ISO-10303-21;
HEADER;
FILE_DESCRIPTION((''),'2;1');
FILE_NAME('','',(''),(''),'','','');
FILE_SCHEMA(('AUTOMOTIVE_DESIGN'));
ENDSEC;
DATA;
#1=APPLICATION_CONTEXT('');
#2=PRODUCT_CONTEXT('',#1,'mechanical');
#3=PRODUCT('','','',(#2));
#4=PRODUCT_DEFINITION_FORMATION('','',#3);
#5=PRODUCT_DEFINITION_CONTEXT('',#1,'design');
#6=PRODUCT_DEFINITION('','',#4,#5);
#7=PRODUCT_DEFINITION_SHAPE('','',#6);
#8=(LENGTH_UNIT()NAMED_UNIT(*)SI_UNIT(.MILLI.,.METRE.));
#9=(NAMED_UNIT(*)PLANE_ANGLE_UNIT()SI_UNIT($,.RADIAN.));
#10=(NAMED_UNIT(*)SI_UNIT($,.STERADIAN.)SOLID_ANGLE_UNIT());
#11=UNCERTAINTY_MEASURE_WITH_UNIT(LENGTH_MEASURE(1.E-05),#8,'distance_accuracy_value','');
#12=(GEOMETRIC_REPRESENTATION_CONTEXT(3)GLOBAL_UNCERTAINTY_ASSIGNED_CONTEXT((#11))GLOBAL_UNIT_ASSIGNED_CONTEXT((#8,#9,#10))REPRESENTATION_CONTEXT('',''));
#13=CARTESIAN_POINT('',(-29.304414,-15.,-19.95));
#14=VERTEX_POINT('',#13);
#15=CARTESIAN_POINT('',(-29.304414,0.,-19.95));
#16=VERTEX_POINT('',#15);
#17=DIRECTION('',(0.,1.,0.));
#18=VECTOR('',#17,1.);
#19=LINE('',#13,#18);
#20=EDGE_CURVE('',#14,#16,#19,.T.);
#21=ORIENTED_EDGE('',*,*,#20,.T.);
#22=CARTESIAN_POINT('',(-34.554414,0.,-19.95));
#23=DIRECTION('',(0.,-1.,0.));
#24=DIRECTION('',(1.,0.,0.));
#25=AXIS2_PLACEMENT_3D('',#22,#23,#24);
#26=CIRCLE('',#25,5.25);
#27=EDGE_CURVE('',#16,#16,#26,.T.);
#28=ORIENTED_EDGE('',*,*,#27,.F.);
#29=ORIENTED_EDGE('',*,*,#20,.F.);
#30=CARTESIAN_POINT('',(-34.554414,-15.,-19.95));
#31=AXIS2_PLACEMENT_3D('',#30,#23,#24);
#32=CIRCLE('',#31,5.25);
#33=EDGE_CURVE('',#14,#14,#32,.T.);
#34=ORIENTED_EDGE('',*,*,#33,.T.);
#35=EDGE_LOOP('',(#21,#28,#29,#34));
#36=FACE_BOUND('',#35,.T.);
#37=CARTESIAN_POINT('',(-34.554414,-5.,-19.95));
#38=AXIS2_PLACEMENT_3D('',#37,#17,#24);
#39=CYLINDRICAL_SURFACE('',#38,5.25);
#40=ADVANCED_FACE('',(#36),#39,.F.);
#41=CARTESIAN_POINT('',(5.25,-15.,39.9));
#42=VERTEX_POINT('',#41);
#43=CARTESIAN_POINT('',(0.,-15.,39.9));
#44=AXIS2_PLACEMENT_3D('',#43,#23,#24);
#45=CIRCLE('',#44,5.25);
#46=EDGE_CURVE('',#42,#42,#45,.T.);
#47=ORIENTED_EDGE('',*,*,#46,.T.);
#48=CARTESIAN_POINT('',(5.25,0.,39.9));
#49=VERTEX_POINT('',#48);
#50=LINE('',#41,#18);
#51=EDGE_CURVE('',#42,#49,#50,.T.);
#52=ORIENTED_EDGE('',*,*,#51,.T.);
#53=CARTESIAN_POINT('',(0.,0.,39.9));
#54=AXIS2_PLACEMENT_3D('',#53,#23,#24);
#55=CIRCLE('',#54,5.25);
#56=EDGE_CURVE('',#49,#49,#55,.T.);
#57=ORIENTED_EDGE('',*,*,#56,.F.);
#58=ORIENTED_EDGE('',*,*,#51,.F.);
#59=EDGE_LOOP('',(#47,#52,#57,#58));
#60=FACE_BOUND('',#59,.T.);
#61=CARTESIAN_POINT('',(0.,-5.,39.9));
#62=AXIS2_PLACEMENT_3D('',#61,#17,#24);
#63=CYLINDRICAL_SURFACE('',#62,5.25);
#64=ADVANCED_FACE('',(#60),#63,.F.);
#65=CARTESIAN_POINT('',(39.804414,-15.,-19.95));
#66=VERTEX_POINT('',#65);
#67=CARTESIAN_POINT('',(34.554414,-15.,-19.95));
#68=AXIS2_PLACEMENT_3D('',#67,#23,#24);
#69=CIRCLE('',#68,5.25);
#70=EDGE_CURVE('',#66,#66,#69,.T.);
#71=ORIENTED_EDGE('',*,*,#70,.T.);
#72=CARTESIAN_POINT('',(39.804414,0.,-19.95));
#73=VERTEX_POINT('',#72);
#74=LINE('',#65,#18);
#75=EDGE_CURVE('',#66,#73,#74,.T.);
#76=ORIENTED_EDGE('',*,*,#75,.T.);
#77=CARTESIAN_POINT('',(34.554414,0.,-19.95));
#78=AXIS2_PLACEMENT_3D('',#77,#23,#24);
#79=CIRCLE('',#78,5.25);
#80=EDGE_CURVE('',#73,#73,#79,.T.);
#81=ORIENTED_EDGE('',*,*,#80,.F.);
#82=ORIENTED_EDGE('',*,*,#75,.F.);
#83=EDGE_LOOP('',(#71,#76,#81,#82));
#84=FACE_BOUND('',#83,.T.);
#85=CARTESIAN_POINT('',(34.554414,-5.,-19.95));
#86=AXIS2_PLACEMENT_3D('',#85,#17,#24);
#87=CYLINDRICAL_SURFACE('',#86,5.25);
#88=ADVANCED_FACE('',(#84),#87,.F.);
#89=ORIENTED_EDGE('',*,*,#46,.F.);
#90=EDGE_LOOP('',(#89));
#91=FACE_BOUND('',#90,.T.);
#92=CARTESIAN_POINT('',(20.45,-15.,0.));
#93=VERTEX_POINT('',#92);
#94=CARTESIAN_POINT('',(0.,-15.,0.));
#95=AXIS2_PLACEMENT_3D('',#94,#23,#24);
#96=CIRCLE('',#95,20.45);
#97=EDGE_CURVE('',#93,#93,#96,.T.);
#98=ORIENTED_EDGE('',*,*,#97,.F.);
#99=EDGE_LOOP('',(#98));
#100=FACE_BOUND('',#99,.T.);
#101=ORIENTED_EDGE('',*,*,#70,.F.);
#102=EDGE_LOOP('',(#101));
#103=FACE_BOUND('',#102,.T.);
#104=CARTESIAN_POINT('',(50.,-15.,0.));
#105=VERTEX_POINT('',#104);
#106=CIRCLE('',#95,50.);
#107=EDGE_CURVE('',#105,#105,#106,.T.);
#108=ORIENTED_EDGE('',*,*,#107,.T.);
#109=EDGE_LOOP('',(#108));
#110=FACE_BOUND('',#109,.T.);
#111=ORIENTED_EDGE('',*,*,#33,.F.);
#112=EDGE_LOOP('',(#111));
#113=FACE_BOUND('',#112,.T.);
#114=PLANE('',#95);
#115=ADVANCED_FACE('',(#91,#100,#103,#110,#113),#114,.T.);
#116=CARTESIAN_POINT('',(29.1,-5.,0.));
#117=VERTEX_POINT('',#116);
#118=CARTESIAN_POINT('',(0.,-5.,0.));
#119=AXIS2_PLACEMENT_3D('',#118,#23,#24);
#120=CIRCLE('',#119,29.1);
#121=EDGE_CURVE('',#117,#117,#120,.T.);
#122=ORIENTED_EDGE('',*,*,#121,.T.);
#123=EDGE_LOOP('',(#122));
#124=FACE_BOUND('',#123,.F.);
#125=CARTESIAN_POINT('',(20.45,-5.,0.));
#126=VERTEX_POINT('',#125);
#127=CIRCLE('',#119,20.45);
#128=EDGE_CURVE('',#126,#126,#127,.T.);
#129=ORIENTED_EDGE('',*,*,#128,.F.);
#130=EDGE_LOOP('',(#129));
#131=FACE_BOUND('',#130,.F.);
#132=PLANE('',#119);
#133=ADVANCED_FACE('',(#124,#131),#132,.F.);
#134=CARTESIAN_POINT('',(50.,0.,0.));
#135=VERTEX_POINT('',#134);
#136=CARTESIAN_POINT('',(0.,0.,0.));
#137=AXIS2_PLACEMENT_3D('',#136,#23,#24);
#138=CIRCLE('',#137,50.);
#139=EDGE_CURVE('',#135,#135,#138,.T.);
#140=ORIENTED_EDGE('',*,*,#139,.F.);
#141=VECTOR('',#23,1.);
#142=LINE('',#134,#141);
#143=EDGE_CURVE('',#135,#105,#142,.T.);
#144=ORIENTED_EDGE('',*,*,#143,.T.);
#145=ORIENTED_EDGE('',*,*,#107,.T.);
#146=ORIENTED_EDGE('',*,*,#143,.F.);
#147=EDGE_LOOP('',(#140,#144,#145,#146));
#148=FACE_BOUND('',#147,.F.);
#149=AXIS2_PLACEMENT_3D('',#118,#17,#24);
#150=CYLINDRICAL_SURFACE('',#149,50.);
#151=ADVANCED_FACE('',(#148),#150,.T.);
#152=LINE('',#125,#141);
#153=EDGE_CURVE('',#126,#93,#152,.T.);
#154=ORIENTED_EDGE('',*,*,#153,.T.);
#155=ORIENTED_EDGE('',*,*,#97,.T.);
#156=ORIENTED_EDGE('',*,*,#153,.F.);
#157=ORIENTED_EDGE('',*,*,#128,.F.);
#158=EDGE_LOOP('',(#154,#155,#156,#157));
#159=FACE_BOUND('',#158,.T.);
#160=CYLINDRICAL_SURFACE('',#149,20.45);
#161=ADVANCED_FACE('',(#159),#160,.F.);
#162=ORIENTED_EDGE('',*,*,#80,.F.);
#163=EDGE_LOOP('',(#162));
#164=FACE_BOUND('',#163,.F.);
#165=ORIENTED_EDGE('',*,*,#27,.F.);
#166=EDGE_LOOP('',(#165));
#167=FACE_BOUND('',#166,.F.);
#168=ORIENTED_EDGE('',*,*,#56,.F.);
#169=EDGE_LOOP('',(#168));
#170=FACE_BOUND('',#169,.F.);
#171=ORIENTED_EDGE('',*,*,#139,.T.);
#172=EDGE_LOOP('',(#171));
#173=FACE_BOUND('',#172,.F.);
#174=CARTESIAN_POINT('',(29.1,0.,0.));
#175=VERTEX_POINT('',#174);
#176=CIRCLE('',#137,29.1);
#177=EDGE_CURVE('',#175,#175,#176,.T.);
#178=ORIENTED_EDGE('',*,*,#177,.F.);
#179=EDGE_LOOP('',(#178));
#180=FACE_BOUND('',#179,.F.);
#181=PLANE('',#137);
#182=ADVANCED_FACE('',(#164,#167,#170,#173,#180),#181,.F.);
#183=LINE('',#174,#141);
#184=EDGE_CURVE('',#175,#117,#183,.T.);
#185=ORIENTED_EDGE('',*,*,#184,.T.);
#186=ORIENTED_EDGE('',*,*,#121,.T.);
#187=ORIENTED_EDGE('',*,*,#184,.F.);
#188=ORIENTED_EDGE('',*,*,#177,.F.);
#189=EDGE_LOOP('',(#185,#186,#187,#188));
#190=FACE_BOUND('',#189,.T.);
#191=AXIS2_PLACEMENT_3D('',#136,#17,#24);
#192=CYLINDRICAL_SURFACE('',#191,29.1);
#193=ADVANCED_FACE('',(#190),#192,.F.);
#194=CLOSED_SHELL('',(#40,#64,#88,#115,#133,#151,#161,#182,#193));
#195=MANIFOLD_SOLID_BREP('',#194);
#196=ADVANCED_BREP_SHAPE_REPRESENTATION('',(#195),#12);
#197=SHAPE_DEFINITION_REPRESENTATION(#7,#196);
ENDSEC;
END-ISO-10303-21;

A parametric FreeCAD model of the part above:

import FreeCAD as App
import Part
import Sketcher

doc = App.newDocument("Part")
params = doc.addObject("Spreadsheet::Sheet", "Params")
for row, (alias, value) in enumerate([
    ("sketch1_diameter", "100 mm"),
    ("sketch1_diameter2", "10.5 mm"),
    ("sketch1_diameter3", "58.2 mm"),
    ("pad1_length", "5 mm"),
    ("sketch2_diameter", "100 mm"),
    ("sketch2_diameter2", "10.5 mm"),
    ("sketch2_diameter3", "40.9 mm"),
    ("pad2_length", "10 mm"),
], start=1):
    params.set(f"A{row}", alias)
    params.set(f"B{row}", "=" + value)
    params.setAlias(f"B{row}", alias)

body = doc.addObject("PartDesign::Body", "Body")

# Sketch on XZ plane
sketch1 = doc.addObject("Sketcher::SketchObject", "Sketch")
body.addObject(sketch1)
sketch1.AttachmentSupport = (doc.XZ_Plane, [""])
sketch1.MapMode = "FlatFace"
sketch1.addGeometry(Part.Circle(App.Vector(0, 0, 0), App.Vector(0, 0, 1), 50), False)
sketch1.addGeometry(Part.Circle(App.Vector(-34.554414, -19.95, 0), App.Vector(0, 0, 1), 5.25), False)
sketch1.addGeometry(Part.Circle(App.Vector(34.554414, -19.95, 0), App.Vector(0, 0, 1), 5.25), False)
sketch1.addGeometry(Part.Circle(App.Vector(0, 0, 0), App.Vector(0, 0, 1), 29.1), False)
sketch1.addGeometry(Part.Circle(App.Vector(0, 39.9, 0), App.Vector(0, 0, 1), 5.25), False)
sketch1.addConstraint(Sketcher.Constraint("Coincident", 0, 3, -1, 1))
sketch1.addConstraint(Sketcher.Constraint("Coincident", 3, 3, -1, 1))
sketch1.addConstraint(Sketcher.Constraint("Equal", 1, 2))
sketch1.addConstraint(Sketcher.Constraint("Equal", 2, 4))
sketch1.addConstraint(Sketcher.Constraint("Symmetric", 1, 3, 2, 3, -2))
sketch1.addConstraint(Sketcher.Constraint("PointOnObject", 4, 3, -2))
sketch1.addConstraint(Sketcher.Constraint("Diameter", 0, 100.0))
sketch1.addConstraint(Sketcher.Constraint("Diameter", 1, 10.5))
sketch1.addConstraint(Sketcher.Constraint("Diameter", 3, 58.2))
sketch1.addConstraint(Sketcher.Constraint("DistanceY", -1, 1, 4, 3, 39.9))
sketch1.addConstraint(Sketcher.Constraint("DistanceY", 1, 3, -1, 1, 19.95))
sketch1.addConstraint(Sketcher.Constraint("DistanceX", 1, 3, 2, 3, 69.108828))
sketch1.setExpression("Constraints[6]", "Params.sketch1_diameter")
sketch1.setExpression("Constraints[7]", "Params.sketch1_diameter2")
sketch1.setExpression("Constraints[8]", "Params.sketch1_diameter3")
pad1 = doc.addObject("PartDesign::Pad", "Pad")
body.addObject(pad1)
pad1.Profile = sketch1
pad1.setExpression("Length", "Params.pad1_length")

# Sketch on XZ plane
sketch2 = doc.addObject("Sketcher::SketchObject", "Sketch001")
body.addObject(sketch2)
sketch2.AttachmentSupport = (doc.XZ_Plane, [""])
sketch2.MapMode = "FlatFace"
sketch2.AttachmentOffset = App.Placement(App.Vector(0, 0, 5), App.Rotation())
sketch2.addGeometry(Part.Circle(App.Vector(0, 0, 0), App.Vector(0, 0, 1), 50), False)
sketch2.addGeometry(Part.Circle(App.Vector(-34.554414, -19.95, 0), App.Vector(0, 0, 1), 5.25), False)
sketch2.addGeometry(Part.Circle(App.Vector(34.554414, -19.95, 0), App.Vector(0, 0, 1), 5.25), False)
sketch2.addGeometry(Part.Circle(App.Vector(0, 0, 0), App.Vector(0, 0, 1), 20.45), False)
sketch2.addGeometry(Part.Circle(App.Vector(0, 39.9, 0), App.Vector(0, 0, 1), 5.25), False)
sketch2.addConstraint(Sketcher.Constraint("Coincident", 0, 3, -1, 1))
sketch2.addConstraint(Sketcher.Constraint("Coincident", 3, 3, -1, 1))
sketch2.addConstraint(Sketcher.Constraint("Equal", 1, 2))
sketch2.addConstraint(Sketcher.Constraint("Equal", 2, 4))
sketch2.addConstraint(Sketcher.Constraint("Symmetric", 1, 3, 2, 3, -2))
sketch2.addConstraint(Sketcher.Constraint("PointOnObject", 4, 3, -2))
sketch2.addConstraint(Sketcher.Constraint("Diameter", 0, 100.0))
sketch2.addConstraint(Sketcher.Constraint("Diameter", 1, 10.5))
sketch2.addConstraint(Sketcher.Constraint("Diameter", 3, 40.9))
sketch2.addConstraint(Sketcher.Constraint("DistanceY", -1, 1, 4, 3, 39.9))
sketch2.addConstraint(Sketcher.Constraint("DistanceY", 1, 3, -1, 1, 19.95))
sketch2.addConstraint(Sketcher.Constraint("DistanceX", 1, 3, 2, 3, 69.108828))
sketch2.setExpression("Constraints[6]", "Params.sketch2_diameter")
sketch2.setExpression("Constraints[7]", "Params.sketch2_diameter2")
sketch2.setExpression("Constraints[8]", "Params.sketch2_diameter3")
pad2 = doc.addObject("PartDesign::Pad", "Pad001")
body.addObject(pad2)
pad2.Profile = sketch2
pad2.setExpression("Length", "Params.pad2_length")

doc.recompute()
